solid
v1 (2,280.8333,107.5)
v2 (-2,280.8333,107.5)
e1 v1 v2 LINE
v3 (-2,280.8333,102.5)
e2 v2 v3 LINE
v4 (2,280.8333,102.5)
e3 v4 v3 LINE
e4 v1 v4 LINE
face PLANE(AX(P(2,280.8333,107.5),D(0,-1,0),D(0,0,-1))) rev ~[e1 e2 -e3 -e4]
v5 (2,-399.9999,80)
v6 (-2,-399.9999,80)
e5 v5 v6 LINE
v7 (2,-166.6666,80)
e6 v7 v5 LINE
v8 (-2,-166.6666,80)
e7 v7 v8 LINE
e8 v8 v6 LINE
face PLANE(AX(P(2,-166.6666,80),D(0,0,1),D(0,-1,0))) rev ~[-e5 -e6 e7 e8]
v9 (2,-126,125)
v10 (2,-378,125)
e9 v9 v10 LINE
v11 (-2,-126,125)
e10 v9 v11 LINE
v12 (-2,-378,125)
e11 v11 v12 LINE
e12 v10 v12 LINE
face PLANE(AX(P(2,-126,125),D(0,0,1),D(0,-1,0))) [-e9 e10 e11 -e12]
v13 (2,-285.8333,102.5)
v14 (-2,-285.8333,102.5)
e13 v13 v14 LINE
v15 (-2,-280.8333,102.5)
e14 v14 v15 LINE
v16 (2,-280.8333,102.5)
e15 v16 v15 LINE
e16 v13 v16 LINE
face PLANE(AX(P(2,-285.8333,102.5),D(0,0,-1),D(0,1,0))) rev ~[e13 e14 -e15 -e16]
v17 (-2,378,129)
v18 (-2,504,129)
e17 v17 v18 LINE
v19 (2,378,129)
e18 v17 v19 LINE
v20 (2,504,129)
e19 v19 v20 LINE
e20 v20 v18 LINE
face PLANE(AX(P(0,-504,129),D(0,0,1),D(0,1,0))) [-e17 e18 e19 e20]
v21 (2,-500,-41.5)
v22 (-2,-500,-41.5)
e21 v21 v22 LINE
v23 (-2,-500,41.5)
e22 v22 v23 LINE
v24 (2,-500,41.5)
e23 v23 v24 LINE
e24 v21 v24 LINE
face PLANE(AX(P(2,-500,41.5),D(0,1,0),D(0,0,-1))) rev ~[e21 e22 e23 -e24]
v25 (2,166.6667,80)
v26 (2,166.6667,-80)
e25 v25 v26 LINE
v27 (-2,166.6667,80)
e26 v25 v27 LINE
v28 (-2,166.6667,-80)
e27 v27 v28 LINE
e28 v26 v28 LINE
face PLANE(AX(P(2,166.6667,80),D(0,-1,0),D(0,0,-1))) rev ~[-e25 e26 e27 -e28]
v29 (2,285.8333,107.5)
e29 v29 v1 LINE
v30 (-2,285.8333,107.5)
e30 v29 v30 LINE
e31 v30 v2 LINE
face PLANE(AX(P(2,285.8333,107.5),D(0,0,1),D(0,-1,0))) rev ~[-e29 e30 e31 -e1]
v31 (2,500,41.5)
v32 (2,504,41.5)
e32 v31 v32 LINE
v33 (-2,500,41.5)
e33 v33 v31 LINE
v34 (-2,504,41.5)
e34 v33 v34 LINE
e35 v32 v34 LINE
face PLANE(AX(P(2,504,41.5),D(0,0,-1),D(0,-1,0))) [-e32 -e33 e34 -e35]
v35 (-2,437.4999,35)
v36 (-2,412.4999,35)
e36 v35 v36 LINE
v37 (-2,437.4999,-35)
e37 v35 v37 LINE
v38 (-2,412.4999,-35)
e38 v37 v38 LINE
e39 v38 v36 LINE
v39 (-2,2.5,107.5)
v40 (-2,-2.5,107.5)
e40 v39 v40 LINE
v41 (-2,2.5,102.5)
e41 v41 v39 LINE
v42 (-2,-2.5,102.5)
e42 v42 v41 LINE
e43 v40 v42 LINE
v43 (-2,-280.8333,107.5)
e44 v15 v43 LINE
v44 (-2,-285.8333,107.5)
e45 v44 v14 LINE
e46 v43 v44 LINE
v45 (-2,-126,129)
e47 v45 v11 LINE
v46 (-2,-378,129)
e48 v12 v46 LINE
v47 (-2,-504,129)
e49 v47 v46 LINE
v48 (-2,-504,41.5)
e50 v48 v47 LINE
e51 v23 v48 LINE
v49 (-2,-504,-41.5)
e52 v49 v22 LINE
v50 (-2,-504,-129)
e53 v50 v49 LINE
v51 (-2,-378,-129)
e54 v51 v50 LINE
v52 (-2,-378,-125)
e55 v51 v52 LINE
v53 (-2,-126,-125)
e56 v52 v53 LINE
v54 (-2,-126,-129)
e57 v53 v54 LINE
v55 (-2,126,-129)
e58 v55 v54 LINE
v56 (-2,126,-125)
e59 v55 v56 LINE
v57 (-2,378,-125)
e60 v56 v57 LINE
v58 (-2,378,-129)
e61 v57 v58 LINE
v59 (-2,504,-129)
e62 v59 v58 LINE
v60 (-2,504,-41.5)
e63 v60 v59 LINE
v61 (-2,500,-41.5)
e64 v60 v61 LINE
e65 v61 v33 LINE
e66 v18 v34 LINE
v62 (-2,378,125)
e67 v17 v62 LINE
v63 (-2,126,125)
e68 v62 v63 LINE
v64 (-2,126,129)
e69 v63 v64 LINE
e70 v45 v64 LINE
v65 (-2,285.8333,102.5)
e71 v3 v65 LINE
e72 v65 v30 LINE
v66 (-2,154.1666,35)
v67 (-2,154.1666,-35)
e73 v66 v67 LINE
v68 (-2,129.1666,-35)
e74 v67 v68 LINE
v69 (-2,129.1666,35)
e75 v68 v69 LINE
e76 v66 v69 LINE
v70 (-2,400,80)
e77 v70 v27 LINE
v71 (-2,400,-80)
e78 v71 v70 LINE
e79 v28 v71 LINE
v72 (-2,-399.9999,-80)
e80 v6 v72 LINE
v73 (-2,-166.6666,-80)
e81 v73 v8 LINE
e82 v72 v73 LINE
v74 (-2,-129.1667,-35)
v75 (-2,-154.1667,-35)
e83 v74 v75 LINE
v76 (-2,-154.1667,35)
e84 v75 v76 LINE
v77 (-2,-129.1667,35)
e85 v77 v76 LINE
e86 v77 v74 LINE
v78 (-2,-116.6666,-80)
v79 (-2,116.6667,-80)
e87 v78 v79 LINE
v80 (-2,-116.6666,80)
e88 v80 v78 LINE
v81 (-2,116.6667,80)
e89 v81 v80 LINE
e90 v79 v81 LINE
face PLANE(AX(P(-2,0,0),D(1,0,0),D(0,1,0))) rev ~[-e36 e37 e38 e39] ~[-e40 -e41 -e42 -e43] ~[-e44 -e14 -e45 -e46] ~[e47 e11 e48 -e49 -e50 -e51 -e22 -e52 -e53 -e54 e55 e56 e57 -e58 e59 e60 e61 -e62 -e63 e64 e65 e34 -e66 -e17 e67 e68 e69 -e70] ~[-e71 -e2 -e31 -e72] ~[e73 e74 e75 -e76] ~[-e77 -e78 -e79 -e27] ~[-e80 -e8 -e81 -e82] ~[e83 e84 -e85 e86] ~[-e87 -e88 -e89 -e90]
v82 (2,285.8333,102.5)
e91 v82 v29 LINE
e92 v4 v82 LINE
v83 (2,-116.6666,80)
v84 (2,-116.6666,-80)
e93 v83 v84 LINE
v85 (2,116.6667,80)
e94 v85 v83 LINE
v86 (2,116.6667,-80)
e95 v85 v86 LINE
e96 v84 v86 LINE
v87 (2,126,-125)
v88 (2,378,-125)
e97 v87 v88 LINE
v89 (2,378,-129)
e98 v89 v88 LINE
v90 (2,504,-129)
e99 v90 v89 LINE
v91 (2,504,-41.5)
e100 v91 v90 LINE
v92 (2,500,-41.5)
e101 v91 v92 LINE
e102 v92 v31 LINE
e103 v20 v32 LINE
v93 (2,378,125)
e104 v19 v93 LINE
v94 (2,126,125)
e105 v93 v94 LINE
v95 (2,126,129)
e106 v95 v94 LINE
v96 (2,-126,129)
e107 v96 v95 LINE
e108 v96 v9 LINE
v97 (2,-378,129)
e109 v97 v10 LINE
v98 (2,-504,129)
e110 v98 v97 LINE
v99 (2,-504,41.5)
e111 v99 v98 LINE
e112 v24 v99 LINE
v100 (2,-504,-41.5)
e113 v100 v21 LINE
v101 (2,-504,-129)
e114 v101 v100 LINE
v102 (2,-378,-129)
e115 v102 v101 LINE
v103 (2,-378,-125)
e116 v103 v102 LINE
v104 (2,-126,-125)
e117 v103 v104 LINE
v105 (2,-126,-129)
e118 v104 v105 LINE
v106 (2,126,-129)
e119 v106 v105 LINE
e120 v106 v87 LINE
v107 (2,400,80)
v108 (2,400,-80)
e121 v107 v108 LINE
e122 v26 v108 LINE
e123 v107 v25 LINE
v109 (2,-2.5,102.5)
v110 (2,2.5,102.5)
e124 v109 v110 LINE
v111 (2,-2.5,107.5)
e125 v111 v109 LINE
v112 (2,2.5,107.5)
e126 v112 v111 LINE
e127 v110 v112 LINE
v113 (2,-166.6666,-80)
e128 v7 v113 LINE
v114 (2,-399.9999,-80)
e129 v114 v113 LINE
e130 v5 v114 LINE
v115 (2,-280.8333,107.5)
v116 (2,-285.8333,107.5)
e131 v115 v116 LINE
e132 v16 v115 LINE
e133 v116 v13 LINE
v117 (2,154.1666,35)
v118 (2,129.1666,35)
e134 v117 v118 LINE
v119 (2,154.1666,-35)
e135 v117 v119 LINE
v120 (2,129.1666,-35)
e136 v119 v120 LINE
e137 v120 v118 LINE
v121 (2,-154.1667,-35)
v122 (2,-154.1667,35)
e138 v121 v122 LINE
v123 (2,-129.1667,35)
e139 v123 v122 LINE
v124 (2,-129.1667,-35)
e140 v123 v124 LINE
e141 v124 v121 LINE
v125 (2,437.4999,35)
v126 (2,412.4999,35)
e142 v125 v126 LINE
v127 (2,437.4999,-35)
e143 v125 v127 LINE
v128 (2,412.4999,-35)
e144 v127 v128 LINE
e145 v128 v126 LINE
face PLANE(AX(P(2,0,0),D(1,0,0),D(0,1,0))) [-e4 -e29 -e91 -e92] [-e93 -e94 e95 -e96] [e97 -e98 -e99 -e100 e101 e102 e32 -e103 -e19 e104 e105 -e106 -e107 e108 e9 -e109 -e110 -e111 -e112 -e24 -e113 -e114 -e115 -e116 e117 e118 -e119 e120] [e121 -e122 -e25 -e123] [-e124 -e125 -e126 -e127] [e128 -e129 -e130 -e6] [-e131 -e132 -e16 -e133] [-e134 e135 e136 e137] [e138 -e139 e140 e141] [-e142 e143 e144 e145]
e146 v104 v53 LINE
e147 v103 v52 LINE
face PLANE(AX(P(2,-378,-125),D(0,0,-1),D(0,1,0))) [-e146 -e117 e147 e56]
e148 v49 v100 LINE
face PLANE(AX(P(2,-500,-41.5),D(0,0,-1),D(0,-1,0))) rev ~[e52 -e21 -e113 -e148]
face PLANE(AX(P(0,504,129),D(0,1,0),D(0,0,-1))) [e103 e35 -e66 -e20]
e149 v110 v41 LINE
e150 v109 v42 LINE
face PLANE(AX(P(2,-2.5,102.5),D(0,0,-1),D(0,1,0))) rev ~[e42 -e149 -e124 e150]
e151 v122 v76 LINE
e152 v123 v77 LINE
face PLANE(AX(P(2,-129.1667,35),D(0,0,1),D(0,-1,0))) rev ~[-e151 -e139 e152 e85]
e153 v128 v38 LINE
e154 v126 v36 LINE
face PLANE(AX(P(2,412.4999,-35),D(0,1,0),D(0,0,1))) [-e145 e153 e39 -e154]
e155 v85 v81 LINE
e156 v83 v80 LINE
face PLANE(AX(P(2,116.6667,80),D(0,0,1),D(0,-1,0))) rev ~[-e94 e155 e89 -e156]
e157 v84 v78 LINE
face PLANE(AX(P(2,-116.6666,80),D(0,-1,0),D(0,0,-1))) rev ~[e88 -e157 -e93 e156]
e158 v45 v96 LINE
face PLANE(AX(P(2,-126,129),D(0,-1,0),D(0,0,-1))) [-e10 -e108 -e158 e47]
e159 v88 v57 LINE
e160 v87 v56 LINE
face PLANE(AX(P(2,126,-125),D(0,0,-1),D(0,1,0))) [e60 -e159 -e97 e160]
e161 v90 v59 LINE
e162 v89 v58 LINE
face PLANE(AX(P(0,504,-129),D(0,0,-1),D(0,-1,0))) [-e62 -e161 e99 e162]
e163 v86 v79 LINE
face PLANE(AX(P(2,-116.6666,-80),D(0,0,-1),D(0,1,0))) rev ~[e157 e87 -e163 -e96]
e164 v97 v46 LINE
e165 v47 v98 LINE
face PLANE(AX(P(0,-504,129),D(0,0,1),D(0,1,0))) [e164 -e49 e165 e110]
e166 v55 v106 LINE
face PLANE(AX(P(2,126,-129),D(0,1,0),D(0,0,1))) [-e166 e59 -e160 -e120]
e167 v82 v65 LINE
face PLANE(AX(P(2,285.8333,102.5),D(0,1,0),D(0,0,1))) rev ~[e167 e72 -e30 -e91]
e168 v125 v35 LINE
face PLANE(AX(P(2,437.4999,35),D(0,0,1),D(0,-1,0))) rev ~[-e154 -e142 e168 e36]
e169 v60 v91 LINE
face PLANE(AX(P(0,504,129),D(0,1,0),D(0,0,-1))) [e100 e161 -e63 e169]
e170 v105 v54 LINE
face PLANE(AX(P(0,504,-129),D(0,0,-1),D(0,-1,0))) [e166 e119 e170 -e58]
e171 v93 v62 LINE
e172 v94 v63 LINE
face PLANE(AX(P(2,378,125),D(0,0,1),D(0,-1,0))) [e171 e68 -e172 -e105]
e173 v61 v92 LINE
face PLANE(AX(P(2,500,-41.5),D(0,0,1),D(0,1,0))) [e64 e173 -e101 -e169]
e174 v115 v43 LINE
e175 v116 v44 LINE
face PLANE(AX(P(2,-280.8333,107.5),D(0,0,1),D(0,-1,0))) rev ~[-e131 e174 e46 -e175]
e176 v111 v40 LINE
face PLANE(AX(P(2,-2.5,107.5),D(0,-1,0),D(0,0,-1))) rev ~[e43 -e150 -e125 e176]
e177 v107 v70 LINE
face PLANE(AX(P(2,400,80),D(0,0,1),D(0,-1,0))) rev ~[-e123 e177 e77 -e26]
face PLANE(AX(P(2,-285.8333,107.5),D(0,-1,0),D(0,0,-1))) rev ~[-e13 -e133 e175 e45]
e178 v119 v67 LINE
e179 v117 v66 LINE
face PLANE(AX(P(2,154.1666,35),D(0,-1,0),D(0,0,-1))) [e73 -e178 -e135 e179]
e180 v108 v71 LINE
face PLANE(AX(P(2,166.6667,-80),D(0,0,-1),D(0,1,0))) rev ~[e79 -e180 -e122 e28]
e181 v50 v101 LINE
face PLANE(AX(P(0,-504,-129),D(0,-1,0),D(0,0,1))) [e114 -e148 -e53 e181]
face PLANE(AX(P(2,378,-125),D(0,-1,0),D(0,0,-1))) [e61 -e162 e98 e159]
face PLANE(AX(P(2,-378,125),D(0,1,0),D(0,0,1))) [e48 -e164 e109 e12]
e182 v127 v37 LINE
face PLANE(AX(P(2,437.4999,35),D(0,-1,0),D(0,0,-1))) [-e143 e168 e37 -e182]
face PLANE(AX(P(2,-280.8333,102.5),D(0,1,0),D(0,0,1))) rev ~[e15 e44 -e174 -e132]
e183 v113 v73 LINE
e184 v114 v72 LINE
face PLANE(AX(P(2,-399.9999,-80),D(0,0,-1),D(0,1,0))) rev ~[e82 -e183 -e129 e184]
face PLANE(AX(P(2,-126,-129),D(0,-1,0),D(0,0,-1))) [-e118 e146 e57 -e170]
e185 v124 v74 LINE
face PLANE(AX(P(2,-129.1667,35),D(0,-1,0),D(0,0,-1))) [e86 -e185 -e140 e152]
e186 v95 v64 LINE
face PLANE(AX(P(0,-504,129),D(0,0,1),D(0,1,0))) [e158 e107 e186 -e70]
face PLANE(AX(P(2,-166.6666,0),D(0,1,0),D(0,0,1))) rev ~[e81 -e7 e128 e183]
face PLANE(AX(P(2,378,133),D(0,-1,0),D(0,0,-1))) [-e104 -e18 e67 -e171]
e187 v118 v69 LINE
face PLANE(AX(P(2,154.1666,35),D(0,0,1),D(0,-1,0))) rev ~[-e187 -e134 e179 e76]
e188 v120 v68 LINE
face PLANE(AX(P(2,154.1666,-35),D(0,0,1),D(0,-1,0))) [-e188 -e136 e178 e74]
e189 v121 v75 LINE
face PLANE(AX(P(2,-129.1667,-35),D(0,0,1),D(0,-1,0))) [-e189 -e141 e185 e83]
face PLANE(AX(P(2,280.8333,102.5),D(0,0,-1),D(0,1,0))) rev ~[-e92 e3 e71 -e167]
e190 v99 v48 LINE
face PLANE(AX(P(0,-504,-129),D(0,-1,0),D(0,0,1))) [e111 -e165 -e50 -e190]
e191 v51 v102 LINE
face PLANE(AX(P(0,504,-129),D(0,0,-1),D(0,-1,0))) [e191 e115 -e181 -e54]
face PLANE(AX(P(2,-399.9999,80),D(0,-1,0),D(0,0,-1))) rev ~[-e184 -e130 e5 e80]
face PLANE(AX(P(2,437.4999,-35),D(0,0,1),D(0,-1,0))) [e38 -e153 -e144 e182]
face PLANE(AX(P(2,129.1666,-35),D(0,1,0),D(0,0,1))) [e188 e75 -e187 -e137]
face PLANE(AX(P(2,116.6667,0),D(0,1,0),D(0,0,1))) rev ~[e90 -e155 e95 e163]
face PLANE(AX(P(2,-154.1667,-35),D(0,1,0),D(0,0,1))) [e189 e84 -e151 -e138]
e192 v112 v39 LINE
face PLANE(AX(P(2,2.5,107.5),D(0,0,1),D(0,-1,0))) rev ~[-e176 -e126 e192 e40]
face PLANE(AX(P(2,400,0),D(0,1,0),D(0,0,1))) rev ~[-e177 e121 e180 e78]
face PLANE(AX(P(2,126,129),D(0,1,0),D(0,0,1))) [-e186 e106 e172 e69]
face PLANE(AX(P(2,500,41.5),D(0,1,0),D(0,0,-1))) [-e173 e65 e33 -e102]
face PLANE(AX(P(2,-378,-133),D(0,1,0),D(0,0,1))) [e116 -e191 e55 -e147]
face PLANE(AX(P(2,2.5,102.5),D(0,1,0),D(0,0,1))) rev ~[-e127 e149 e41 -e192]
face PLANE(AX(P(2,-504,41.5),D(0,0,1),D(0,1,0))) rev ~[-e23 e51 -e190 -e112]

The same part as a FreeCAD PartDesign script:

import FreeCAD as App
import Part
import Sketcher
Q = App.Units.Quantity


def add_polygon(sketch, points):
    """Adds a closed chain of lines whose ends are joined by coincident constraints."""
    first, n = sketch.GeometryCount, len(points)
    for a, b in zip(points, points[1:] + points[:1]):
        sketch.addGeometry(Part.LineSegment(App.Vector(*a, 0), App.Vector(*b, 0)), False)
    for i in range(n):
        sketch.addConstraint(Sketcher.Constraint("Coincident", first + i, 2, first + (i + 1) % n, 1))

doc = App.newDocument("Part")
body = doc.addObject("PartDesign::Body", "Body")

# Sketch on YZ plane
sketch1 = body.newObject("Sketcher::SketchObject", "Sketch")
sketch1.AttachmentSupport = (doc.getObject("YZ_Plane"), [""])
sketch1.MapMode = "FlatFace"
add_polygon(sketch1, [(504, 129), (-504, 129), (-504, -129), (504, -129)])  # lines 0-3
sketch1.addConstraint([
    Sketcher.Constraint("Horizontal", 0),
    Sketcher.Constraint("Vertical", 1),
    Sketcher.Constraint("Horizontal", 2),
    Sketcher.Constraint("Vertical", 3),
    Sketcher.Constraint("Symmetric", 0, 2, 2, 2, -1, 1),
    Sketcher.Constraint("DistanceX", 0, 2, 0, 1, Q("1008 mm")),
    Sketcher.Constraint("DistanceY", 1, 2, 1, 1, Q("258 mm")),
])
pad1 = body.newObject("PartDesign::Pad", "Pad")
pad1.Profile = sketch1
pad1.Length = 4
pad1.Midplane = True

# Sketch on YZ plane
sketch2 = body.newObject("Sketcher::SketchObject", "Sketch001")
sketch2.AttachmentSupport = (doc.getObject("YZ_Plane"), [""])
sketch2.MapMode = "FlatFace"
sketch2.AttachmentOffset = App.Placement(App.Vector(0, 0, 2), App.Rotation())
add_polygon(sketch2, [(378, 133), (126, 133), (126, 125), (378, 125)])  # lines 0-3
add_polygon(sketch2, [(-126, 125), (-126, 133), (-378, 133), (-378, 125)])  # lines 4-7
add_polygon(sketch2, [(126, -125), (126, -133), (378, -133), (378, -125)])  # lines 8-11
add_polygon(sketch2, [(-126, -133), (-126, -125), (-378, -125), (-378, -133)])  # lines 12-15
sketch2.addConstraint([
    Sketcher.Constraint("Horizontal", 0),
    Sketcher.Constraint("Vertical", 1),
    Sketcher.Constraint("Horizontal", 2),
    Sketcher.Constraint("Vertical", 3),
    Sketcher.Constraint("Vertical", 4),
    Sketcher.Constraint("Horizontal", 5),
    Sketcher.Constraint("Vertical", 6),
    Sketcher.Constraint("Horizontal", 7),
    Sketcher.Constraint("Vertical", 8),
    Sketcher.Constraint("Horizontal", 9),
    Sketcher.Constraint("Vertical", 10),
    Sketcher.Constraint("Horizontal", 11),
    Sketcher.Constraint("Vertical", 12),
    Sketcher.Constraint("Horizontal", 13),
    Sketcher.Constraint("Vertical", 14),
    Sketcher.Constraint("Horizontal", 15),
    Sketcher.Constraint("Symmetric", 4, 2, 8, 2, -1, 1),
    Sketcher.Constraint("Symmetric", 6, 2, 10, 2, -1, 1),
    Sketcher.Constraint("Symmetric", 1, 2, 12, 2, -1, 1),
    Sketcher.Constraint("Symmetric", 3, 2, 14, 2, -1, 1),
    Sketcher.Constraint("Symmetric", 0, 2, 4, 2, -2),
    Sketcher.Constraint("Symmetric", 2, 2, 6, 2, -2),
    Sketcher.Constraint("DistanceX", 0, 2, 0, 1, Q("252 mm")),
    Sketcher.Constraint("DistanceY", 1, 2, 1, 1, Q("8 mm")),
    Sketcher.Constraint("DistanceX", -1, 1, 0, 2, Q("126 mm")),
    Sketcher.Constraint("DistanceY", -1, 1, 0, 2, Q("133 mm")),
])
pocket1 = body.newObject("PartDesign::Pocket", "Pocket")
pocket1.Profile = sketch2
pocket1.Type = "ThroughAll"
pocket1.Midplane = True

# Sketch on YZ plane
sketch3 = body.newObject("Sketcher::SketchObject", "Sketch002")
sketch3.AttachmentSupport = (doc.getObject("YZ_Plane"), [""])
sketch3.MapMode = "FlatFace"
sketch3.AttachmentOffset = App.Placement(App.Vector(0, 0, 2), App.Rotation())
add_polygon(sketch3, [(500, 41.5), (500, -41.5), (508, -41.5), (508, 41.5)])  # lines 0-3
add_polygon(sketch3, [(-500, -41.5), (-500, 41.5), (-508, 41.5), (-508, -41.5)])  # lines 4-7
sketch3.addConstraint([
    Sketcher.Constraint("Vertical", 0),
    Sketcher.Constraint("Horizontal", 1),
    Sketcher.Constraint("Vertical", 2),
    Sketcher.Constraint("Horizontal", 3),
    Sketcher.Constraint("Vertical", 4),
    Sketcher.Constraint("Horizontal", 5),
    Sketcher.Constraint("Vertical", 6),
    Sketcher.Constraint("Horizontal", 7),
    Sketcher.Constraint("Symmetric", 0, 2, 4, 2, -1, 1),
    Sketcher.Constraint("Symmetric", 2, 2, 6, 2, -1, 1),
    Sketcher.Constraint("Horizontal", 3, 2, 4, 2),
    Sketcher.Constraint("DistanceX", 1, 1, 1, 2, Q("8 mm")),
    Sketcher.Constraint("DistanceY", 0, 2, 0, 1, Q("83 mm")),
    Sketcher.Constraint("DistanceX", -1, 1, 0, 2, Q("500 mm")),
])
pocket2 = body.newObject("PartDesign::Pocket", "Pocket001")
pocket2.Profile = sketch3
pocket2.Type = "ThroughAll"
pocket2.Midplane = True

# Sketch on YZ plane
sketch4 = body.newObject("Sketcher::SketchObject", "Sketch003")
sketch4.AttachmentSupport = (doc.getObject("YZ_Plane"), [""])
sketch4.MapMode = "FlatFace"
sketch4.AttachmentOffset = App.Placement(App.Vector(0, 0, 2), App.Rotation())
add_polygon(sketch4, [(400, -80), (400, 80), (166.6667, 80), (166.6667, -80)])  # lines 0-3
sketch4.addConstraint([
    Sketcher.Constraint("Vertical", 0),
    Sketcher.Constraint("Horizontal", 1),
    Sketcher.Constraint("Vertical", 2),
    Sketcher.Constraint("Horizontal", 3),
    Sketcher.Constraint("DistanceY", -1, 1, 0, 2, Q("80 mm")),
    Sketcher.Constraint("DistanceY", 2, 2, -1, 1, Q("80 mm")),
    Sketcher.Constraint("DistanceX", 1, 2, 1, 1, Q("233.3333 mm")),
    Sketcher.Constraint("DistanceX", -1, 1, 0, 2, Q("400 mm")),
])
pocket3 = body.newObject("PartDesign::Pocket", "Pocket002")
pocket3.Profile = sketch4
pocket3.Type = "ThroughAll"
doc.recompute()

linearpattern = body.newObject("PartDesign::LinearPattern", "LinearPattern")
linearpattern.Originals = [pocket3]
linearpattern.Direction = (doc.getObject("Y_Axis"), [""])
linearpattern.Mode = "offset"
linearpattern.Offset = 283.3333
linearpattern.Occurrences = 3
linearpattern.Reversed = True
body.Tip = linearpattern

# Sketch on YZ plane
sketch5 = body.newObject("Sketcher::SketchObject", "Sketch004")
sketch5.AttachmentSupport = (doc.getObject("YZ_Plane"), [""])
sketch5.MapMode = "FlatFace"
sketch5.AttachmentOffset = App.Placement(App.Vector(0, 0, 2), App.Rotation())
add_polygon(sketch5, [(-129.1667, -35), (-129.1667, 35), (-154.1667, 35), (-154.1667, -35)])  # lines 0-3
sketch5.addConstraint([
    Sketcher.Constraint("Vertical", 0),
    Sketcher.Constraint("Horizontal", 1),
    Sketcher.Constraint("Vertical", 2),
    Sketcher.Constraint("Horizontal", 3),
    Sketcher.Constraint("DistanceX", 1, 2, 1, 1, Q("25 mm")),
    Sketcher.Constraint("DistanceY", 0, 1, 0, 2, Q("70 mm")),
    Sketcher.Constraint("DistanceY", -1, 1, 0, 2, Q("35 mm")),
    Sketcher.Constraint("DistanceX", 0, 2, -1, 1, Q("129.1667 mm")),
])
pocket4 = body.newObject("PartDesign::Pocket", "Pocket003")
pocket4.Profile = sketch5
pocket4.Type = "ThroughAll"
doc.recompute()

linearpattern2 = body.newObject("PartDesign::LinearPattern", "LinearPattern001")
linearpattern2.Originals = [pocket4]
linearpattern2.Direction = (doc.getObject("Y_Axis"), [""])
linearpattern2.Mode = "offset"
linearpattern2.Offset = 283.3333
linearpattern2.Occurrences = 3
body.Tip = linearpattern2

# Sketch on YZ plane
sketch6 = body.newObject("Sketcher::SketchObject", "Sketch005")
sketch6.AttachmentSupport = (doc.getObject("YZ_Plane"), [""])
sketch6.MapMode = "FlatFace"
sketch6.AttachmentOffset = App.Placement(App.Vector(0, 0, 2), App.Rotation())
add_polygon(sketch6, [(285.8333, 107.5), (280.8333, 107.5), (280.8333, 102.5), (285.8333, 102.5)])  # lines 0-3
sketch6.addConstraint([
    Sketcher.Constraint("Horizontal", 0),
    Sketcher.Constraint("Vertical", 1),
    Sketcher.Constraint("Horizontal", 2),
    Sketcher.Constraint("Vertical", 3),
    Sketcher.Constraint("Equal", 2, 1),
    Sketcher.Constraint("DistanceX", 0, 2, 0, 1, Q("5 mm")),
    Sketcher.Constraint("DistanceY", -1, 1, 0, 2, Q("107.5 mm")),
    Sketcher.Constraint("DistanceX", -1, 1, 0, 2, Q("280.8333 mm")),
])
pocket5 = body.newObject("PartDesign::Pocket", "Pocket004")
pocket5.Profile = sketch6
pocket5.Type = "ThroughAll"
doc.recompute()

linearpattern3 = body.newObject("PartDesign::LinearPattern", "LinearPattern002")
linearpattern3.Originals = [pocket5]
linearpattern3.Direction = (doc.getObject("Y_Axis"), [""])
linearpattern3.Mode = "offset"
linearpattern3.Offset = 283.3333
linearpattern3.Occurrences = 3
linearpattern3.Reversed = True
body.Tip = linearpattern3

doc.recompute()
